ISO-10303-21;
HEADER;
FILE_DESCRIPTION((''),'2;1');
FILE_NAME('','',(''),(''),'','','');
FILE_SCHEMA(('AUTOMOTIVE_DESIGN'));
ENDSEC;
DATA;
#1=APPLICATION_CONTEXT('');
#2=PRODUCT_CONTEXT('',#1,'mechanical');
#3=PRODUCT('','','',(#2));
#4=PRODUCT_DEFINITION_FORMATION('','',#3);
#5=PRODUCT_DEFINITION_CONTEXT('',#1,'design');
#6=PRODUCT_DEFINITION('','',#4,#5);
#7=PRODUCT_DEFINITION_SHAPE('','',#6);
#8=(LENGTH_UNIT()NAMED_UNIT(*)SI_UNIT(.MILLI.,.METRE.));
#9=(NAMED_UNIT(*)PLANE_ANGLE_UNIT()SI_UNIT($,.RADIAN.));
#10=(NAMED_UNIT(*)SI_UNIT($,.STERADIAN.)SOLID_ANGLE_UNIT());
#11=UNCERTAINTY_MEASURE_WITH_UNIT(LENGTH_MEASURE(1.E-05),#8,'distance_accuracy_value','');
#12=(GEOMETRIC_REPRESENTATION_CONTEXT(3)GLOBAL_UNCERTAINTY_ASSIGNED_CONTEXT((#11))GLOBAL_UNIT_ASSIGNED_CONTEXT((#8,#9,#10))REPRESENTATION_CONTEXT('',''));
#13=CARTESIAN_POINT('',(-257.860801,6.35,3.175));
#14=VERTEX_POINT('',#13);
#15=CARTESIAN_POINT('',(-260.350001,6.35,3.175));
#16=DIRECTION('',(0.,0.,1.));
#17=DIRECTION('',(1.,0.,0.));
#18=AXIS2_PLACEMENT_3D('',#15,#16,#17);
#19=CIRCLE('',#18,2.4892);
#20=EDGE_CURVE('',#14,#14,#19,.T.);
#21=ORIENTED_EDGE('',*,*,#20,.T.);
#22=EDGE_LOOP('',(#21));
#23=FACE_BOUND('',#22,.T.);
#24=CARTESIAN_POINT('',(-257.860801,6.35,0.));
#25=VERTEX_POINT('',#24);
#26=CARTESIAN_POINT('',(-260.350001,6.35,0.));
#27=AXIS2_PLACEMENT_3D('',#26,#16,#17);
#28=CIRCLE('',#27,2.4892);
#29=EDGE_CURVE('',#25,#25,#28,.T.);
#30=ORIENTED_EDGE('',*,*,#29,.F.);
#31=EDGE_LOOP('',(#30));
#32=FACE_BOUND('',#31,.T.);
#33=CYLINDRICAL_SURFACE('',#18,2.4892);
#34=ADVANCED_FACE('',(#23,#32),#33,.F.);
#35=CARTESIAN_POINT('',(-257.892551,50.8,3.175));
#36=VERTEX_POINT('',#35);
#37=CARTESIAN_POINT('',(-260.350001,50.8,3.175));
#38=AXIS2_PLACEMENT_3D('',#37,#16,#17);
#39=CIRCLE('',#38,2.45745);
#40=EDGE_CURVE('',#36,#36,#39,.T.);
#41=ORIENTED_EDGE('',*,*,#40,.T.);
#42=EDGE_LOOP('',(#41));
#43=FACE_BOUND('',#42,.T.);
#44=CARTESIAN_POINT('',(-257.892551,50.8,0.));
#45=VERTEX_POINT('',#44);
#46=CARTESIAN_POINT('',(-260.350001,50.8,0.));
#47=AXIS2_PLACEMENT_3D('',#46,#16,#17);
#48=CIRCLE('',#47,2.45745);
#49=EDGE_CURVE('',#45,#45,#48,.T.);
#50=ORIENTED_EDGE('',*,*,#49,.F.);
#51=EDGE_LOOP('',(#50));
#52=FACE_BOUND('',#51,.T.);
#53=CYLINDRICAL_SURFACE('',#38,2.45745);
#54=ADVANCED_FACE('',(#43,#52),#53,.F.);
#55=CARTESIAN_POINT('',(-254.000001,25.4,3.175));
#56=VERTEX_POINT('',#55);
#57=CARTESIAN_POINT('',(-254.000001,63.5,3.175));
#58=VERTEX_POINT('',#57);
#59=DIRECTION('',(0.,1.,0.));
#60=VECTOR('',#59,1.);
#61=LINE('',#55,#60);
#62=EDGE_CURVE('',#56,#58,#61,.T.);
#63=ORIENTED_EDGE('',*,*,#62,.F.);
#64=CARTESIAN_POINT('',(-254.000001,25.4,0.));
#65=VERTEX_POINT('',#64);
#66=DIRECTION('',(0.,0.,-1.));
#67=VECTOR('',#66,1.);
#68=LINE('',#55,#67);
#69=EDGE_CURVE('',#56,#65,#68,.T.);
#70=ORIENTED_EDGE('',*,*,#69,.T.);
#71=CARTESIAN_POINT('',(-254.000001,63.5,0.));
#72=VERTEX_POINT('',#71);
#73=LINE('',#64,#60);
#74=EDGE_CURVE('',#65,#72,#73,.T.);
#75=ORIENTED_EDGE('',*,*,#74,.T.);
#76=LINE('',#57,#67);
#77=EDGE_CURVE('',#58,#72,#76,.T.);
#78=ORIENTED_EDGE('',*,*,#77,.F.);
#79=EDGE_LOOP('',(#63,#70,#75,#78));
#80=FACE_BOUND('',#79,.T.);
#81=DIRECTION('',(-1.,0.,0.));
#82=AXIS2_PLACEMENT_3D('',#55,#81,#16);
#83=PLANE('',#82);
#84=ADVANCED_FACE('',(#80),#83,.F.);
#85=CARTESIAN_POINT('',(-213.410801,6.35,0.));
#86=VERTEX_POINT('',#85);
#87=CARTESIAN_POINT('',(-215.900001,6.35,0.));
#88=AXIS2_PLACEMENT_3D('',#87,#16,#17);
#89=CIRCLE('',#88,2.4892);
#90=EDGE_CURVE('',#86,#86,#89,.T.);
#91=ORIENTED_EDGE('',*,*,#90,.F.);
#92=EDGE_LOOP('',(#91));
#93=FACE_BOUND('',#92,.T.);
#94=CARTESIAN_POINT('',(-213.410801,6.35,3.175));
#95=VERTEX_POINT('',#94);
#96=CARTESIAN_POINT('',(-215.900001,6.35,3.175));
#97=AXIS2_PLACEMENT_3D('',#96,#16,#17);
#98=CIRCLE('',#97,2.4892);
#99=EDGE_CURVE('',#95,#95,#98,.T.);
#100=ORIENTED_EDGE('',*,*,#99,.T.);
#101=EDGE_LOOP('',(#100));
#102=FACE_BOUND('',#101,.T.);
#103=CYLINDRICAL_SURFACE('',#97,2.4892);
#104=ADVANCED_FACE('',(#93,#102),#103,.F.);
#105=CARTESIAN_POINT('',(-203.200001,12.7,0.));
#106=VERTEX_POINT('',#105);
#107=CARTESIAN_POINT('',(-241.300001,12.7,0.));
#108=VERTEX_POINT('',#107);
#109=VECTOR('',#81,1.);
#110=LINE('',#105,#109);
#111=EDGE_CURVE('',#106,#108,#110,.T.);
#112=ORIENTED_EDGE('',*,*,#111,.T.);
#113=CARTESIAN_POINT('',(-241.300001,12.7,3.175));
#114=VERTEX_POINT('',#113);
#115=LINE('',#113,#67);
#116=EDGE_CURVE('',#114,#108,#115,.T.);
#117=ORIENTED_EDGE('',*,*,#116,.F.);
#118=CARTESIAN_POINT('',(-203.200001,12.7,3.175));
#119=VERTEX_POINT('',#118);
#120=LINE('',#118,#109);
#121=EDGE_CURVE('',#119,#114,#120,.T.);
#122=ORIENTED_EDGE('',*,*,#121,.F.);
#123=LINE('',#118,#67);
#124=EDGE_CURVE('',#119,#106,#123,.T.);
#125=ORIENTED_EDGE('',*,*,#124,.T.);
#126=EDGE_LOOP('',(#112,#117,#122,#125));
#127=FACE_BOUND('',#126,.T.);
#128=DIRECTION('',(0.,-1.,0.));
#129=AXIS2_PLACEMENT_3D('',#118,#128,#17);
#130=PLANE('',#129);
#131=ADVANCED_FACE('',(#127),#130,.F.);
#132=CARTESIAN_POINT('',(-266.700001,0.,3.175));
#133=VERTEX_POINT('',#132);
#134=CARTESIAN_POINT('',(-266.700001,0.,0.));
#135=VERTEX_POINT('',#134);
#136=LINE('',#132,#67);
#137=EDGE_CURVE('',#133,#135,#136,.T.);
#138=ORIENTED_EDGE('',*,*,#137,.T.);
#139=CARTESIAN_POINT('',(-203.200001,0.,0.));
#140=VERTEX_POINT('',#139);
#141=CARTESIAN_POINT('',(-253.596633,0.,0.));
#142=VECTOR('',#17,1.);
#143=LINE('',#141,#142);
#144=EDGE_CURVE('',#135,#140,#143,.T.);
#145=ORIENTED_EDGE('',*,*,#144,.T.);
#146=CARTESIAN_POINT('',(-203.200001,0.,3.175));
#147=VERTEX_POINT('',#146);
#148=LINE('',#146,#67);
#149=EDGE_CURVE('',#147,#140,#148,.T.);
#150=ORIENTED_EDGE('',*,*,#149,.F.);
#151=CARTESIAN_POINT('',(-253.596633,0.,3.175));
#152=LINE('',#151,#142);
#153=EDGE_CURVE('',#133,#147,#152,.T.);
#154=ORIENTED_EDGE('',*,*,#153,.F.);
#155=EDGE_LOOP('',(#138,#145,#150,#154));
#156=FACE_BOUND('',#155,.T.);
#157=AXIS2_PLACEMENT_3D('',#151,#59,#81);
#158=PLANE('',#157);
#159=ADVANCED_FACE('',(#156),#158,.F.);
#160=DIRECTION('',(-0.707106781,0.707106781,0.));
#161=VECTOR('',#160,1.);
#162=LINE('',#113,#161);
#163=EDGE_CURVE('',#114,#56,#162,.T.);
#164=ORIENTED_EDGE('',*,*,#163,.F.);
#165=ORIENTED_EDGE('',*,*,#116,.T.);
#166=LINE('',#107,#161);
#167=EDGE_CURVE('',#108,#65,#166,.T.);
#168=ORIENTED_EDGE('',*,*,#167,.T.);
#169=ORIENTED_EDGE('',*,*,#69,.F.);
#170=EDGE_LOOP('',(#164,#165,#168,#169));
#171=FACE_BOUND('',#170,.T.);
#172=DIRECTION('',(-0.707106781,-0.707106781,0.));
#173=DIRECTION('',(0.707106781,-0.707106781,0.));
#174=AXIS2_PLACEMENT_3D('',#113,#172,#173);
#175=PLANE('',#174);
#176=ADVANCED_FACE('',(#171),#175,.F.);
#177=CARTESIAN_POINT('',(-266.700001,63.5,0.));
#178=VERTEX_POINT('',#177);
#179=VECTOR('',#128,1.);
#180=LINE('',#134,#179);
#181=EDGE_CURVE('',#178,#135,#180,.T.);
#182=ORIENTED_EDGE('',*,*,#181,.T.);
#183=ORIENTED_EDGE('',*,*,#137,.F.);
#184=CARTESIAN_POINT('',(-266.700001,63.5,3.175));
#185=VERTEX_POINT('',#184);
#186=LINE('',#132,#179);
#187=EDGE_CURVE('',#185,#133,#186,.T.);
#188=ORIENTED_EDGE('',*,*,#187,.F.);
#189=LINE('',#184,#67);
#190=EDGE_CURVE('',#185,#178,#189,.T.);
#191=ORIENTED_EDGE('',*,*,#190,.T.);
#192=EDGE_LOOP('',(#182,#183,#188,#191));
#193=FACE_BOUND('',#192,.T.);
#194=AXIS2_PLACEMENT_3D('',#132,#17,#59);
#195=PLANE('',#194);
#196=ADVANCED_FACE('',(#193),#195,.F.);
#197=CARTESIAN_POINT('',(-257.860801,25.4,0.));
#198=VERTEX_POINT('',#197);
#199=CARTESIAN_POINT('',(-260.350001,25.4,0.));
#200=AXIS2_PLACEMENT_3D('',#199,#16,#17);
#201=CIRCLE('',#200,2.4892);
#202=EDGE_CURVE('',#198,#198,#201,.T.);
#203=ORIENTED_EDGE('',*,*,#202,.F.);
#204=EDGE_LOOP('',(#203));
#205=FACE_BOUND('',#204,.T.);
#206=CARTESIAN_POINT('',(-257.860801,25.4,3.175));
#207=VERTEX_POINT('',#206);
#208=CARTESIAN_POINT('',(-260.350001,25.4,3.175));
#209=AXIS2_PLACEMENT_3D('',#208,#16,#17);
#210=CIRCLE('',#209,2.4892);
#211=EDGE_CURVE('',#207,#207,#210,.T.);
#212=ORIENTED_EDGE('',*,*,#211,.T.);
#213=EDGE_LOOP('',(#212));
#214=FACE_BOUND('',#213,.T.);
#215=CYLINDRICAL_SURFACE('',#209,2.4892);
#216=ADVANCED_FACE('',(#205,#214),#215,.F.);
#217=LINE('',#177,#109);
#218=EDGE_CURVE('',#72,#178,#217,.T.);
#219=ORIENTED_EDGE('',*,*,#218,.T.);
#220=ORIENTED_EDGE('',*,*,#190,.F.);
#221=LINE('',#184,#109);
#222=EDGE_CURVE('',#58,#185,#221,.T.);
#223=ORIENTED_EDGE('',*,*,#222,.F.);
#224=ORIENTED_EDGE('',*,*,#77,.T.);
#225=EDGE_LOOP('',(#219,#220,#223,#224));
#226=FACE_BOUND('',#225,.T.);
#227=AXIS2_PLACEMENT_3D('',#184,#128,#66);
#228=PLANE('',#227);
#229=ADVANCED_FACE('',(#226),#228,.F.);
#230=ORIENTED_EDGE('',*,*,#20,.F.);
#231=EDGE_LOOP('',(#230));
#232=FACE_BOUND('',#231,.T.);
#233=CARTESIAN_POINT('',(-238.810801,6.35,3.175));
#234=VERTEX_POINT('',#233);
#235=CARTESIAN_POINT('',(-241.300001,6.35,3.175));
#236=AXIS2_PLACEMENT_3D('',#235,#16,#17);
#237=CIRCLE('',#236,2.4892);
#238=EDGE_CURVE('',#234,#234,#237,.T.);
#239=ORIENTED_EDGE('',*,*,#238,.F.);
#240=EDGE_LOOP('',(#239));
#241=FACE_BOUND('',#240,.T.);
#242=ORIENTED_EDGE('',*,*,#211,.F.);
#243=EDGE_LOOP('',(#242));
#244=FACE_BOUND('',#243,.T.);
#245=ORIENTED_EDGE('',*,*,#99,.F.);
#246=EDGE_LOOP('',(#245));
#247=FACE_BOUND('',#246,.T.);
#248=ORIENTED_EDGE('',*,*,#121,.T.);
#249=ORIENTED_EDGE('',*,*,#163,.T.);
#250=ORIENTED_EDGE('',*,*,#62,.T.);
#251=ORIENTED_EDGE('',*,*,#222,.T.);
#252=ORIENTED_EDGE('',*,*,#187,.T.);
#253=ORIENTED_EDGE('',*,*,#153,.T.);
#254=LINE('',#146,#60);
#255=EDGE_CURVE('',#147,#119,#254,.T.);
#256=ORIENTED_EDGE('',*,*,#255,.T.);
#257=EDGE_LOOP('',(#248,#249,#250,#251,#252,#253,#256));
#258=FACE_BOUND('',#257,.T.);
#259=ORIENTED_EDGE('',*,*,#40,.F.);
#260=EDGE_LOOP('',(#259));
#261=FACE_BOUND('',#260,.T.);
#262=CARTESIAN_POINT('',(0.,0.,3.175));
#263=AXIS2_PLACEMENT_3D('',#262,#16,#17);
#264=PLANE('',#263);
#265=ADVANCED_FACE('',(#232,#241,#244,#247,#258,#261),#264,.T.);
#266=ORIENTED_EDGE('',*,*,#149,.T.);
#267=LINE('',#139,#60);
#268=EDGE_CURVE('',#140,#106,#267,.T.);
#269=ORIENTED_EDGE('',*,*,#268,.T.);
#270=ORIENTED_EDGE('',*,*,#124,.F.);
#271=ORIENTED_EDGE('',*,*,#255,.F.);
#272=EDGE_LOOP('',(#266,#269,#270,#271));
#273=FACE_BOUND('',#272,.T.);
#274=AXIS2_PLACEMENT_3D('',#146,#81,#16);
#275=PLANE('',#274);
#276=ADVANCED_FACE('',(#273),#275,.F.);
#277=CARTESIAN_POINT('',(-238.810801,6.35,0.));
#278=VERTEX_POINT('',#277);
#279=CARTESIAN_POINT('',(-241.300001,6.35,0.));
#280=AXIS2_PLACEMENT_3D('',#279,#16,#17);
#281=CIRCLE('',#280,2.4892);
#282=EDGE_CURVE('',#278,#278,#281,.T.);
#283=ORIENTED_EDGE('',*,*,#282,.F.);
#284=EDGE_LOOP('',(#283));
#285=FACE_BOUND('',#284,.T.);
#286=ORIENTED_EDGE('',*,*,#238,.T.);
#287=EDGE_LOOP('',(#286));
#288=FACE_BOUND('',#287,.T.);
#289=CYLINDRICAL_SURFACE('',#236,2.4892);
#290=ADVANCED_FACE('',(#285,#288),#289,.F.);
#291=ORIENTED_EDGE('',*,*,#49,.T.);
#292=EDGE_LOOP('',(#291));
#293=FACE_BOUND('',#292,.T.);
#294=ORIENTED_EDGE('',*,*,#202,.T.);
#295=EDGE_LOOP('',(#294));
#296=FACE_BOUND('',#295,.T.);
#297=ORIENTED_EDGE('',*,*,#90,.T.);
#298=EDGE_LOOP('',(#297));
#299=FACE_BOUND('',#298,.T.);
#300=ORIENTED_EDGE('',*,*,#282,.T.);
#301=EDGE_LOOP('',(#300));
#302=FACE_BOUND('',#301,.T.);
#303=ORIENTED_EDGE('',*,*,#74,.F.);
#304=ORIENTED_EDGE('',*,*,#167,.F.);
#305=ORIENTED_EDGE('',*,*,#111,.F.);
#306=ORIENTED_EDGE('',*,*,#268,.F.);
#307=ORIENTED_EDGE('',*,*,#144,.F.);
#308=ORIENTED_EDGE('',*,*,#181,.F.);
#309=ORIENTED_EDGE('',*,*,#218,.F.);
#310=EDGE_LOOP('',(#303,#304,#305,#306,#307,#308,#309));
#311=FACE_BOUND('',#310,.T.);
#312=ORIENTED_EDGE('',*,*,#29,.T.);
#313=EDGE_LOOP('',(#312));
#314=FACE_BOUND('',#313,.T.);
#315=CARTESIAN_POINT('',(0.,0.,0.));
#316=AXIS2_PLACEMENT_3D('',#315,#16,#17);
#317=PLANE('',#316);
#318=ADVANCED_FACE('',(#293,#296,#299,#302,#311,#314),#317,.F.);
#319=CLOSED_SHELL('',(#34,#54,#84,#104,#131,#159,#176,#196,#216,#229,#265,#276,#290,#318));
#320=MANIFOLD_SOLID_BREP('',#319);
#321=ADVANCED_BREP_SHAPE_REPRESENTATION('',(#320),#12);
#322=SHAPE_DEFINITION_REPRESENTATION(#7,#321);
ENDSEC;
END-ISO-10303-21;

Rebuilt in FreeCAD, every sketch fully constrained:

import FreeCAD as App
import Part
import Sketcher

V = App.Vector
Q = App.Units.Quantity

doc = App.newDocument("Part")
params = doc.addObject("Spreadsheet::Sheet", "Params")
for row, (alias, value) in enumerate([
    ("sketch1_width", "2.5 in"),
    ("sketch1_width2", "1.5 in"),
    ("sketch1_width3", "0.5 in"),
    ("pad1_length", "0.125 in"),
    ("sketch2_diameter", "0.196 in"),
    ("hole_diameter", "0.196 in"),
    ("hole2_diameter", "0.1935 in"),
], start=1):
    params.set(f"A{row}", alias)
    params.set(f"B{row}", "=" + value)
    params.setAlias(f"B{row}", alias)

body = doc.addObject("PartDesign::Body", "Body")

# Sketch on XY plane
sketch1 = doc.addObject("Sketcher::SketchObject", "Sketch")
body.addObject(sketch1)
sketch1.AttachmentSupport = (doc.XY_Plane, [""])
sketch1.MapMode = "FlatFace"
sketch1.addGeometry([
    Part.LineSegment(V(-267, 0, 0), V(-203, 0, 0)),  # 0
    Part.LineSegment(V(-203, 0, 0), V(-203, 13, 0)),  # 1
    Part.LineSegment(V(-203, 13, 0), V(-241, 13, 0)),  # 2
    Part.LineSegment(V(-241, 13, 0), V(-254, 25, 0)),  # 3
    Part.LineSegment(V(-254, 25, 0), V(-254, 64, 0)),  # 4
    Part.LineSegment(V(-254, 64, 0), V(-267, 64, 0)),  # 5
    Part.LineSegment(V(-267, 64, 0), V(-267, 0, 0)),  # 6
], False)
sketch1.addConstraint([
    Sketcher.Constraint("Coincident", 0, 2, 1, 1),
    Sketcher.Constraint("Coincident", 1, 2, 2, 1),
    Sketcher.Constraint("Coincident", 2, 2, 3, 1),
    Sketcher.Constraint("Coincident", 3, 2, 4, 1),
    Sketcher.Constraint("Coincident", 4, 2, 5, 1),
    Sketcher.Constraint("Coincident", 5, 2, 6, 1),
    Sketcher.Constraint("Coincident", 6, 2, 0, 1),
    Sketcher.Constraint("Horizontal", 0),
    Sketcher.Constraint("Vertical", 1),
    Sketcher.Constraint("Horizontal", 2),
    Sketcher.Constraint("Vertical", 4),
    Sketcher.Constraint("Horizontal", 5),
    Sketcher.Constraint("Vertical", 6),
    Sketcher.Constraint("PointOnObject", 0, 2, -1),
    Sketcher.Constraint("Equal", 5, 1),
    Sketcher.Constraint("Equal", 2, 4),
    Sketcher.Constraint("Equal", 0, 6),
    Sketcher.Constraint("DistanceX", 0, 1, 0, 2, Q("2.5 in")),
    Sketcher.Constraint("DistanceX", 2, 2, 2, 1, Q("1.5 in")),
    Sketcher.Constraint("DistanceX", 5, 2, 5, 1, Q("0.5 in")),
    Sketcher.Constraint("DistanceX", 0, 2, -1, 1, Q("8 in")),
])
sketch1.setExpression("Constraints[17]", "Params.sketch1_width")
sketch1.setExpression("Constraints[18]", "Params.sketch1_width2")
sketch1.setExpression("Constraints[19]", "Params.sketch1_width3")
pad1 = doc.addObject("PartDesign::Pad", "Pad")
body.addObject(pad1)
pad1.Profile = sketch1
pad1.setExpression("Length", "Params.pad1_length")

# Sketch on XY plane
sketch2 = doc.addObject("Sketcher::SketchObject", "Sketch001")
body.addObject(sketch2)
sketch2.AttachmentSupport = (doc.XY_Plane, [""])
sketch2.MapMode = "FlatFace"
sketch2.AttachmentOffset = App.Placement(V(0, 0, 0.125 * 25.4), App.Rotation())
sketch2.addGeometry([
    Part.Circle(V(-260.4, 6.3, 0), V(0, 0, 1), 2.5),
    Part.Circle(V(-260.4, 25.4, 0), V(0, 0, 1), 2.5),
    Part.Circle(V(-241.3, 6.3, 0), V(0, 0, 1), 2.5),
    Part.Circle(V(-215.9, 6.3, 0), V(0, 0, 1), 2.5),
], False)
sketch2.addConstraint([
    Sketcher.Constraint("Equal", 0, 1),
    Sketcher.Constraint("Equal", 1, 2),
    Sketcher.Constraint("Equal", 2, 3),
    Sketcher.Constraint("Horizontal", 0, 3, 2, 3),
    Sketcher.Constraint("Horizontal", 2, 3, 3, 3),
    Sketcher.Constraint("Vertical", 0, 3, 1, 3),
    Sketcher.Constraint("Diameter", 0, Q("0.196 in")),
    Sketcher.Constraint("DistanceY", -1, 1, 1, 3, Q("1 in")),
    Sketcher.Constraint("DistanceX", 2, 3, 3, 3, Q("1 in")),
    Sketcher.Constraint("DistanceX", 2, 3, -1, 1, Q("9.5 in")),
    Sketcher.Constraint("DistanceX", 0, 3, -1, 1, Q("10.25 in")),
    Sketcher.Constraint("DistanceY", -1, 1, 0, 3, Q("0.25 in")),
])
sketch2.setExpression("Constraints[6]", "Params.sketch2_diameter")
doc.recompute()
hole = doc.addObject("PartDesign::Hole", "Hole")
body.addObject(hole)
hole.Profile = sketch2
hole.ThreadType = "None"
hole.setExpression("Diameter", "Params.hole_diameter")
hole.DepthType = "ThroughAll"

# Sketch on XY plane
sketch3 = doc.addObject("Sketcher::SketchObject", "Sketch002")
body.addObject(sketch3)
sketch3.AttachmentSupport = (doc.XY_Plane, [""])
sketch3.MapMode = "FlatFace"
sketch3.AttachmentOffset = App.Placement(V(0, 0, 0.125 * 25.4), App.Rotation())
sketch3.addGeometry(Part.Circle(V(-260.4, 50.8, 0), V(0, 0, 1), 2.5), False)
sketch3.addConstraint([
    Sketcher.Constraint("DistanceY", -1, 1, 0, 3, Q("2 in")),
    Sketcher.Constraint("Diameter", 0, Q("0.1935 in")),
    Sketcher.Constraint("DistanceX", 0, 3, -1, 1, Q("10.25 in")),
])
doc.recompute()
hole2 = doc.addObject("PartDesign::Hole", "Hole001")
body.addObject(hole2)
hole2.Profile = sketch3
hole2.ThreadType = "None"
hole2.setExpression("Diameter", "Params.hole2_diameter")
hole2.DepthType = "ThroughAll"

doc.recompute()
